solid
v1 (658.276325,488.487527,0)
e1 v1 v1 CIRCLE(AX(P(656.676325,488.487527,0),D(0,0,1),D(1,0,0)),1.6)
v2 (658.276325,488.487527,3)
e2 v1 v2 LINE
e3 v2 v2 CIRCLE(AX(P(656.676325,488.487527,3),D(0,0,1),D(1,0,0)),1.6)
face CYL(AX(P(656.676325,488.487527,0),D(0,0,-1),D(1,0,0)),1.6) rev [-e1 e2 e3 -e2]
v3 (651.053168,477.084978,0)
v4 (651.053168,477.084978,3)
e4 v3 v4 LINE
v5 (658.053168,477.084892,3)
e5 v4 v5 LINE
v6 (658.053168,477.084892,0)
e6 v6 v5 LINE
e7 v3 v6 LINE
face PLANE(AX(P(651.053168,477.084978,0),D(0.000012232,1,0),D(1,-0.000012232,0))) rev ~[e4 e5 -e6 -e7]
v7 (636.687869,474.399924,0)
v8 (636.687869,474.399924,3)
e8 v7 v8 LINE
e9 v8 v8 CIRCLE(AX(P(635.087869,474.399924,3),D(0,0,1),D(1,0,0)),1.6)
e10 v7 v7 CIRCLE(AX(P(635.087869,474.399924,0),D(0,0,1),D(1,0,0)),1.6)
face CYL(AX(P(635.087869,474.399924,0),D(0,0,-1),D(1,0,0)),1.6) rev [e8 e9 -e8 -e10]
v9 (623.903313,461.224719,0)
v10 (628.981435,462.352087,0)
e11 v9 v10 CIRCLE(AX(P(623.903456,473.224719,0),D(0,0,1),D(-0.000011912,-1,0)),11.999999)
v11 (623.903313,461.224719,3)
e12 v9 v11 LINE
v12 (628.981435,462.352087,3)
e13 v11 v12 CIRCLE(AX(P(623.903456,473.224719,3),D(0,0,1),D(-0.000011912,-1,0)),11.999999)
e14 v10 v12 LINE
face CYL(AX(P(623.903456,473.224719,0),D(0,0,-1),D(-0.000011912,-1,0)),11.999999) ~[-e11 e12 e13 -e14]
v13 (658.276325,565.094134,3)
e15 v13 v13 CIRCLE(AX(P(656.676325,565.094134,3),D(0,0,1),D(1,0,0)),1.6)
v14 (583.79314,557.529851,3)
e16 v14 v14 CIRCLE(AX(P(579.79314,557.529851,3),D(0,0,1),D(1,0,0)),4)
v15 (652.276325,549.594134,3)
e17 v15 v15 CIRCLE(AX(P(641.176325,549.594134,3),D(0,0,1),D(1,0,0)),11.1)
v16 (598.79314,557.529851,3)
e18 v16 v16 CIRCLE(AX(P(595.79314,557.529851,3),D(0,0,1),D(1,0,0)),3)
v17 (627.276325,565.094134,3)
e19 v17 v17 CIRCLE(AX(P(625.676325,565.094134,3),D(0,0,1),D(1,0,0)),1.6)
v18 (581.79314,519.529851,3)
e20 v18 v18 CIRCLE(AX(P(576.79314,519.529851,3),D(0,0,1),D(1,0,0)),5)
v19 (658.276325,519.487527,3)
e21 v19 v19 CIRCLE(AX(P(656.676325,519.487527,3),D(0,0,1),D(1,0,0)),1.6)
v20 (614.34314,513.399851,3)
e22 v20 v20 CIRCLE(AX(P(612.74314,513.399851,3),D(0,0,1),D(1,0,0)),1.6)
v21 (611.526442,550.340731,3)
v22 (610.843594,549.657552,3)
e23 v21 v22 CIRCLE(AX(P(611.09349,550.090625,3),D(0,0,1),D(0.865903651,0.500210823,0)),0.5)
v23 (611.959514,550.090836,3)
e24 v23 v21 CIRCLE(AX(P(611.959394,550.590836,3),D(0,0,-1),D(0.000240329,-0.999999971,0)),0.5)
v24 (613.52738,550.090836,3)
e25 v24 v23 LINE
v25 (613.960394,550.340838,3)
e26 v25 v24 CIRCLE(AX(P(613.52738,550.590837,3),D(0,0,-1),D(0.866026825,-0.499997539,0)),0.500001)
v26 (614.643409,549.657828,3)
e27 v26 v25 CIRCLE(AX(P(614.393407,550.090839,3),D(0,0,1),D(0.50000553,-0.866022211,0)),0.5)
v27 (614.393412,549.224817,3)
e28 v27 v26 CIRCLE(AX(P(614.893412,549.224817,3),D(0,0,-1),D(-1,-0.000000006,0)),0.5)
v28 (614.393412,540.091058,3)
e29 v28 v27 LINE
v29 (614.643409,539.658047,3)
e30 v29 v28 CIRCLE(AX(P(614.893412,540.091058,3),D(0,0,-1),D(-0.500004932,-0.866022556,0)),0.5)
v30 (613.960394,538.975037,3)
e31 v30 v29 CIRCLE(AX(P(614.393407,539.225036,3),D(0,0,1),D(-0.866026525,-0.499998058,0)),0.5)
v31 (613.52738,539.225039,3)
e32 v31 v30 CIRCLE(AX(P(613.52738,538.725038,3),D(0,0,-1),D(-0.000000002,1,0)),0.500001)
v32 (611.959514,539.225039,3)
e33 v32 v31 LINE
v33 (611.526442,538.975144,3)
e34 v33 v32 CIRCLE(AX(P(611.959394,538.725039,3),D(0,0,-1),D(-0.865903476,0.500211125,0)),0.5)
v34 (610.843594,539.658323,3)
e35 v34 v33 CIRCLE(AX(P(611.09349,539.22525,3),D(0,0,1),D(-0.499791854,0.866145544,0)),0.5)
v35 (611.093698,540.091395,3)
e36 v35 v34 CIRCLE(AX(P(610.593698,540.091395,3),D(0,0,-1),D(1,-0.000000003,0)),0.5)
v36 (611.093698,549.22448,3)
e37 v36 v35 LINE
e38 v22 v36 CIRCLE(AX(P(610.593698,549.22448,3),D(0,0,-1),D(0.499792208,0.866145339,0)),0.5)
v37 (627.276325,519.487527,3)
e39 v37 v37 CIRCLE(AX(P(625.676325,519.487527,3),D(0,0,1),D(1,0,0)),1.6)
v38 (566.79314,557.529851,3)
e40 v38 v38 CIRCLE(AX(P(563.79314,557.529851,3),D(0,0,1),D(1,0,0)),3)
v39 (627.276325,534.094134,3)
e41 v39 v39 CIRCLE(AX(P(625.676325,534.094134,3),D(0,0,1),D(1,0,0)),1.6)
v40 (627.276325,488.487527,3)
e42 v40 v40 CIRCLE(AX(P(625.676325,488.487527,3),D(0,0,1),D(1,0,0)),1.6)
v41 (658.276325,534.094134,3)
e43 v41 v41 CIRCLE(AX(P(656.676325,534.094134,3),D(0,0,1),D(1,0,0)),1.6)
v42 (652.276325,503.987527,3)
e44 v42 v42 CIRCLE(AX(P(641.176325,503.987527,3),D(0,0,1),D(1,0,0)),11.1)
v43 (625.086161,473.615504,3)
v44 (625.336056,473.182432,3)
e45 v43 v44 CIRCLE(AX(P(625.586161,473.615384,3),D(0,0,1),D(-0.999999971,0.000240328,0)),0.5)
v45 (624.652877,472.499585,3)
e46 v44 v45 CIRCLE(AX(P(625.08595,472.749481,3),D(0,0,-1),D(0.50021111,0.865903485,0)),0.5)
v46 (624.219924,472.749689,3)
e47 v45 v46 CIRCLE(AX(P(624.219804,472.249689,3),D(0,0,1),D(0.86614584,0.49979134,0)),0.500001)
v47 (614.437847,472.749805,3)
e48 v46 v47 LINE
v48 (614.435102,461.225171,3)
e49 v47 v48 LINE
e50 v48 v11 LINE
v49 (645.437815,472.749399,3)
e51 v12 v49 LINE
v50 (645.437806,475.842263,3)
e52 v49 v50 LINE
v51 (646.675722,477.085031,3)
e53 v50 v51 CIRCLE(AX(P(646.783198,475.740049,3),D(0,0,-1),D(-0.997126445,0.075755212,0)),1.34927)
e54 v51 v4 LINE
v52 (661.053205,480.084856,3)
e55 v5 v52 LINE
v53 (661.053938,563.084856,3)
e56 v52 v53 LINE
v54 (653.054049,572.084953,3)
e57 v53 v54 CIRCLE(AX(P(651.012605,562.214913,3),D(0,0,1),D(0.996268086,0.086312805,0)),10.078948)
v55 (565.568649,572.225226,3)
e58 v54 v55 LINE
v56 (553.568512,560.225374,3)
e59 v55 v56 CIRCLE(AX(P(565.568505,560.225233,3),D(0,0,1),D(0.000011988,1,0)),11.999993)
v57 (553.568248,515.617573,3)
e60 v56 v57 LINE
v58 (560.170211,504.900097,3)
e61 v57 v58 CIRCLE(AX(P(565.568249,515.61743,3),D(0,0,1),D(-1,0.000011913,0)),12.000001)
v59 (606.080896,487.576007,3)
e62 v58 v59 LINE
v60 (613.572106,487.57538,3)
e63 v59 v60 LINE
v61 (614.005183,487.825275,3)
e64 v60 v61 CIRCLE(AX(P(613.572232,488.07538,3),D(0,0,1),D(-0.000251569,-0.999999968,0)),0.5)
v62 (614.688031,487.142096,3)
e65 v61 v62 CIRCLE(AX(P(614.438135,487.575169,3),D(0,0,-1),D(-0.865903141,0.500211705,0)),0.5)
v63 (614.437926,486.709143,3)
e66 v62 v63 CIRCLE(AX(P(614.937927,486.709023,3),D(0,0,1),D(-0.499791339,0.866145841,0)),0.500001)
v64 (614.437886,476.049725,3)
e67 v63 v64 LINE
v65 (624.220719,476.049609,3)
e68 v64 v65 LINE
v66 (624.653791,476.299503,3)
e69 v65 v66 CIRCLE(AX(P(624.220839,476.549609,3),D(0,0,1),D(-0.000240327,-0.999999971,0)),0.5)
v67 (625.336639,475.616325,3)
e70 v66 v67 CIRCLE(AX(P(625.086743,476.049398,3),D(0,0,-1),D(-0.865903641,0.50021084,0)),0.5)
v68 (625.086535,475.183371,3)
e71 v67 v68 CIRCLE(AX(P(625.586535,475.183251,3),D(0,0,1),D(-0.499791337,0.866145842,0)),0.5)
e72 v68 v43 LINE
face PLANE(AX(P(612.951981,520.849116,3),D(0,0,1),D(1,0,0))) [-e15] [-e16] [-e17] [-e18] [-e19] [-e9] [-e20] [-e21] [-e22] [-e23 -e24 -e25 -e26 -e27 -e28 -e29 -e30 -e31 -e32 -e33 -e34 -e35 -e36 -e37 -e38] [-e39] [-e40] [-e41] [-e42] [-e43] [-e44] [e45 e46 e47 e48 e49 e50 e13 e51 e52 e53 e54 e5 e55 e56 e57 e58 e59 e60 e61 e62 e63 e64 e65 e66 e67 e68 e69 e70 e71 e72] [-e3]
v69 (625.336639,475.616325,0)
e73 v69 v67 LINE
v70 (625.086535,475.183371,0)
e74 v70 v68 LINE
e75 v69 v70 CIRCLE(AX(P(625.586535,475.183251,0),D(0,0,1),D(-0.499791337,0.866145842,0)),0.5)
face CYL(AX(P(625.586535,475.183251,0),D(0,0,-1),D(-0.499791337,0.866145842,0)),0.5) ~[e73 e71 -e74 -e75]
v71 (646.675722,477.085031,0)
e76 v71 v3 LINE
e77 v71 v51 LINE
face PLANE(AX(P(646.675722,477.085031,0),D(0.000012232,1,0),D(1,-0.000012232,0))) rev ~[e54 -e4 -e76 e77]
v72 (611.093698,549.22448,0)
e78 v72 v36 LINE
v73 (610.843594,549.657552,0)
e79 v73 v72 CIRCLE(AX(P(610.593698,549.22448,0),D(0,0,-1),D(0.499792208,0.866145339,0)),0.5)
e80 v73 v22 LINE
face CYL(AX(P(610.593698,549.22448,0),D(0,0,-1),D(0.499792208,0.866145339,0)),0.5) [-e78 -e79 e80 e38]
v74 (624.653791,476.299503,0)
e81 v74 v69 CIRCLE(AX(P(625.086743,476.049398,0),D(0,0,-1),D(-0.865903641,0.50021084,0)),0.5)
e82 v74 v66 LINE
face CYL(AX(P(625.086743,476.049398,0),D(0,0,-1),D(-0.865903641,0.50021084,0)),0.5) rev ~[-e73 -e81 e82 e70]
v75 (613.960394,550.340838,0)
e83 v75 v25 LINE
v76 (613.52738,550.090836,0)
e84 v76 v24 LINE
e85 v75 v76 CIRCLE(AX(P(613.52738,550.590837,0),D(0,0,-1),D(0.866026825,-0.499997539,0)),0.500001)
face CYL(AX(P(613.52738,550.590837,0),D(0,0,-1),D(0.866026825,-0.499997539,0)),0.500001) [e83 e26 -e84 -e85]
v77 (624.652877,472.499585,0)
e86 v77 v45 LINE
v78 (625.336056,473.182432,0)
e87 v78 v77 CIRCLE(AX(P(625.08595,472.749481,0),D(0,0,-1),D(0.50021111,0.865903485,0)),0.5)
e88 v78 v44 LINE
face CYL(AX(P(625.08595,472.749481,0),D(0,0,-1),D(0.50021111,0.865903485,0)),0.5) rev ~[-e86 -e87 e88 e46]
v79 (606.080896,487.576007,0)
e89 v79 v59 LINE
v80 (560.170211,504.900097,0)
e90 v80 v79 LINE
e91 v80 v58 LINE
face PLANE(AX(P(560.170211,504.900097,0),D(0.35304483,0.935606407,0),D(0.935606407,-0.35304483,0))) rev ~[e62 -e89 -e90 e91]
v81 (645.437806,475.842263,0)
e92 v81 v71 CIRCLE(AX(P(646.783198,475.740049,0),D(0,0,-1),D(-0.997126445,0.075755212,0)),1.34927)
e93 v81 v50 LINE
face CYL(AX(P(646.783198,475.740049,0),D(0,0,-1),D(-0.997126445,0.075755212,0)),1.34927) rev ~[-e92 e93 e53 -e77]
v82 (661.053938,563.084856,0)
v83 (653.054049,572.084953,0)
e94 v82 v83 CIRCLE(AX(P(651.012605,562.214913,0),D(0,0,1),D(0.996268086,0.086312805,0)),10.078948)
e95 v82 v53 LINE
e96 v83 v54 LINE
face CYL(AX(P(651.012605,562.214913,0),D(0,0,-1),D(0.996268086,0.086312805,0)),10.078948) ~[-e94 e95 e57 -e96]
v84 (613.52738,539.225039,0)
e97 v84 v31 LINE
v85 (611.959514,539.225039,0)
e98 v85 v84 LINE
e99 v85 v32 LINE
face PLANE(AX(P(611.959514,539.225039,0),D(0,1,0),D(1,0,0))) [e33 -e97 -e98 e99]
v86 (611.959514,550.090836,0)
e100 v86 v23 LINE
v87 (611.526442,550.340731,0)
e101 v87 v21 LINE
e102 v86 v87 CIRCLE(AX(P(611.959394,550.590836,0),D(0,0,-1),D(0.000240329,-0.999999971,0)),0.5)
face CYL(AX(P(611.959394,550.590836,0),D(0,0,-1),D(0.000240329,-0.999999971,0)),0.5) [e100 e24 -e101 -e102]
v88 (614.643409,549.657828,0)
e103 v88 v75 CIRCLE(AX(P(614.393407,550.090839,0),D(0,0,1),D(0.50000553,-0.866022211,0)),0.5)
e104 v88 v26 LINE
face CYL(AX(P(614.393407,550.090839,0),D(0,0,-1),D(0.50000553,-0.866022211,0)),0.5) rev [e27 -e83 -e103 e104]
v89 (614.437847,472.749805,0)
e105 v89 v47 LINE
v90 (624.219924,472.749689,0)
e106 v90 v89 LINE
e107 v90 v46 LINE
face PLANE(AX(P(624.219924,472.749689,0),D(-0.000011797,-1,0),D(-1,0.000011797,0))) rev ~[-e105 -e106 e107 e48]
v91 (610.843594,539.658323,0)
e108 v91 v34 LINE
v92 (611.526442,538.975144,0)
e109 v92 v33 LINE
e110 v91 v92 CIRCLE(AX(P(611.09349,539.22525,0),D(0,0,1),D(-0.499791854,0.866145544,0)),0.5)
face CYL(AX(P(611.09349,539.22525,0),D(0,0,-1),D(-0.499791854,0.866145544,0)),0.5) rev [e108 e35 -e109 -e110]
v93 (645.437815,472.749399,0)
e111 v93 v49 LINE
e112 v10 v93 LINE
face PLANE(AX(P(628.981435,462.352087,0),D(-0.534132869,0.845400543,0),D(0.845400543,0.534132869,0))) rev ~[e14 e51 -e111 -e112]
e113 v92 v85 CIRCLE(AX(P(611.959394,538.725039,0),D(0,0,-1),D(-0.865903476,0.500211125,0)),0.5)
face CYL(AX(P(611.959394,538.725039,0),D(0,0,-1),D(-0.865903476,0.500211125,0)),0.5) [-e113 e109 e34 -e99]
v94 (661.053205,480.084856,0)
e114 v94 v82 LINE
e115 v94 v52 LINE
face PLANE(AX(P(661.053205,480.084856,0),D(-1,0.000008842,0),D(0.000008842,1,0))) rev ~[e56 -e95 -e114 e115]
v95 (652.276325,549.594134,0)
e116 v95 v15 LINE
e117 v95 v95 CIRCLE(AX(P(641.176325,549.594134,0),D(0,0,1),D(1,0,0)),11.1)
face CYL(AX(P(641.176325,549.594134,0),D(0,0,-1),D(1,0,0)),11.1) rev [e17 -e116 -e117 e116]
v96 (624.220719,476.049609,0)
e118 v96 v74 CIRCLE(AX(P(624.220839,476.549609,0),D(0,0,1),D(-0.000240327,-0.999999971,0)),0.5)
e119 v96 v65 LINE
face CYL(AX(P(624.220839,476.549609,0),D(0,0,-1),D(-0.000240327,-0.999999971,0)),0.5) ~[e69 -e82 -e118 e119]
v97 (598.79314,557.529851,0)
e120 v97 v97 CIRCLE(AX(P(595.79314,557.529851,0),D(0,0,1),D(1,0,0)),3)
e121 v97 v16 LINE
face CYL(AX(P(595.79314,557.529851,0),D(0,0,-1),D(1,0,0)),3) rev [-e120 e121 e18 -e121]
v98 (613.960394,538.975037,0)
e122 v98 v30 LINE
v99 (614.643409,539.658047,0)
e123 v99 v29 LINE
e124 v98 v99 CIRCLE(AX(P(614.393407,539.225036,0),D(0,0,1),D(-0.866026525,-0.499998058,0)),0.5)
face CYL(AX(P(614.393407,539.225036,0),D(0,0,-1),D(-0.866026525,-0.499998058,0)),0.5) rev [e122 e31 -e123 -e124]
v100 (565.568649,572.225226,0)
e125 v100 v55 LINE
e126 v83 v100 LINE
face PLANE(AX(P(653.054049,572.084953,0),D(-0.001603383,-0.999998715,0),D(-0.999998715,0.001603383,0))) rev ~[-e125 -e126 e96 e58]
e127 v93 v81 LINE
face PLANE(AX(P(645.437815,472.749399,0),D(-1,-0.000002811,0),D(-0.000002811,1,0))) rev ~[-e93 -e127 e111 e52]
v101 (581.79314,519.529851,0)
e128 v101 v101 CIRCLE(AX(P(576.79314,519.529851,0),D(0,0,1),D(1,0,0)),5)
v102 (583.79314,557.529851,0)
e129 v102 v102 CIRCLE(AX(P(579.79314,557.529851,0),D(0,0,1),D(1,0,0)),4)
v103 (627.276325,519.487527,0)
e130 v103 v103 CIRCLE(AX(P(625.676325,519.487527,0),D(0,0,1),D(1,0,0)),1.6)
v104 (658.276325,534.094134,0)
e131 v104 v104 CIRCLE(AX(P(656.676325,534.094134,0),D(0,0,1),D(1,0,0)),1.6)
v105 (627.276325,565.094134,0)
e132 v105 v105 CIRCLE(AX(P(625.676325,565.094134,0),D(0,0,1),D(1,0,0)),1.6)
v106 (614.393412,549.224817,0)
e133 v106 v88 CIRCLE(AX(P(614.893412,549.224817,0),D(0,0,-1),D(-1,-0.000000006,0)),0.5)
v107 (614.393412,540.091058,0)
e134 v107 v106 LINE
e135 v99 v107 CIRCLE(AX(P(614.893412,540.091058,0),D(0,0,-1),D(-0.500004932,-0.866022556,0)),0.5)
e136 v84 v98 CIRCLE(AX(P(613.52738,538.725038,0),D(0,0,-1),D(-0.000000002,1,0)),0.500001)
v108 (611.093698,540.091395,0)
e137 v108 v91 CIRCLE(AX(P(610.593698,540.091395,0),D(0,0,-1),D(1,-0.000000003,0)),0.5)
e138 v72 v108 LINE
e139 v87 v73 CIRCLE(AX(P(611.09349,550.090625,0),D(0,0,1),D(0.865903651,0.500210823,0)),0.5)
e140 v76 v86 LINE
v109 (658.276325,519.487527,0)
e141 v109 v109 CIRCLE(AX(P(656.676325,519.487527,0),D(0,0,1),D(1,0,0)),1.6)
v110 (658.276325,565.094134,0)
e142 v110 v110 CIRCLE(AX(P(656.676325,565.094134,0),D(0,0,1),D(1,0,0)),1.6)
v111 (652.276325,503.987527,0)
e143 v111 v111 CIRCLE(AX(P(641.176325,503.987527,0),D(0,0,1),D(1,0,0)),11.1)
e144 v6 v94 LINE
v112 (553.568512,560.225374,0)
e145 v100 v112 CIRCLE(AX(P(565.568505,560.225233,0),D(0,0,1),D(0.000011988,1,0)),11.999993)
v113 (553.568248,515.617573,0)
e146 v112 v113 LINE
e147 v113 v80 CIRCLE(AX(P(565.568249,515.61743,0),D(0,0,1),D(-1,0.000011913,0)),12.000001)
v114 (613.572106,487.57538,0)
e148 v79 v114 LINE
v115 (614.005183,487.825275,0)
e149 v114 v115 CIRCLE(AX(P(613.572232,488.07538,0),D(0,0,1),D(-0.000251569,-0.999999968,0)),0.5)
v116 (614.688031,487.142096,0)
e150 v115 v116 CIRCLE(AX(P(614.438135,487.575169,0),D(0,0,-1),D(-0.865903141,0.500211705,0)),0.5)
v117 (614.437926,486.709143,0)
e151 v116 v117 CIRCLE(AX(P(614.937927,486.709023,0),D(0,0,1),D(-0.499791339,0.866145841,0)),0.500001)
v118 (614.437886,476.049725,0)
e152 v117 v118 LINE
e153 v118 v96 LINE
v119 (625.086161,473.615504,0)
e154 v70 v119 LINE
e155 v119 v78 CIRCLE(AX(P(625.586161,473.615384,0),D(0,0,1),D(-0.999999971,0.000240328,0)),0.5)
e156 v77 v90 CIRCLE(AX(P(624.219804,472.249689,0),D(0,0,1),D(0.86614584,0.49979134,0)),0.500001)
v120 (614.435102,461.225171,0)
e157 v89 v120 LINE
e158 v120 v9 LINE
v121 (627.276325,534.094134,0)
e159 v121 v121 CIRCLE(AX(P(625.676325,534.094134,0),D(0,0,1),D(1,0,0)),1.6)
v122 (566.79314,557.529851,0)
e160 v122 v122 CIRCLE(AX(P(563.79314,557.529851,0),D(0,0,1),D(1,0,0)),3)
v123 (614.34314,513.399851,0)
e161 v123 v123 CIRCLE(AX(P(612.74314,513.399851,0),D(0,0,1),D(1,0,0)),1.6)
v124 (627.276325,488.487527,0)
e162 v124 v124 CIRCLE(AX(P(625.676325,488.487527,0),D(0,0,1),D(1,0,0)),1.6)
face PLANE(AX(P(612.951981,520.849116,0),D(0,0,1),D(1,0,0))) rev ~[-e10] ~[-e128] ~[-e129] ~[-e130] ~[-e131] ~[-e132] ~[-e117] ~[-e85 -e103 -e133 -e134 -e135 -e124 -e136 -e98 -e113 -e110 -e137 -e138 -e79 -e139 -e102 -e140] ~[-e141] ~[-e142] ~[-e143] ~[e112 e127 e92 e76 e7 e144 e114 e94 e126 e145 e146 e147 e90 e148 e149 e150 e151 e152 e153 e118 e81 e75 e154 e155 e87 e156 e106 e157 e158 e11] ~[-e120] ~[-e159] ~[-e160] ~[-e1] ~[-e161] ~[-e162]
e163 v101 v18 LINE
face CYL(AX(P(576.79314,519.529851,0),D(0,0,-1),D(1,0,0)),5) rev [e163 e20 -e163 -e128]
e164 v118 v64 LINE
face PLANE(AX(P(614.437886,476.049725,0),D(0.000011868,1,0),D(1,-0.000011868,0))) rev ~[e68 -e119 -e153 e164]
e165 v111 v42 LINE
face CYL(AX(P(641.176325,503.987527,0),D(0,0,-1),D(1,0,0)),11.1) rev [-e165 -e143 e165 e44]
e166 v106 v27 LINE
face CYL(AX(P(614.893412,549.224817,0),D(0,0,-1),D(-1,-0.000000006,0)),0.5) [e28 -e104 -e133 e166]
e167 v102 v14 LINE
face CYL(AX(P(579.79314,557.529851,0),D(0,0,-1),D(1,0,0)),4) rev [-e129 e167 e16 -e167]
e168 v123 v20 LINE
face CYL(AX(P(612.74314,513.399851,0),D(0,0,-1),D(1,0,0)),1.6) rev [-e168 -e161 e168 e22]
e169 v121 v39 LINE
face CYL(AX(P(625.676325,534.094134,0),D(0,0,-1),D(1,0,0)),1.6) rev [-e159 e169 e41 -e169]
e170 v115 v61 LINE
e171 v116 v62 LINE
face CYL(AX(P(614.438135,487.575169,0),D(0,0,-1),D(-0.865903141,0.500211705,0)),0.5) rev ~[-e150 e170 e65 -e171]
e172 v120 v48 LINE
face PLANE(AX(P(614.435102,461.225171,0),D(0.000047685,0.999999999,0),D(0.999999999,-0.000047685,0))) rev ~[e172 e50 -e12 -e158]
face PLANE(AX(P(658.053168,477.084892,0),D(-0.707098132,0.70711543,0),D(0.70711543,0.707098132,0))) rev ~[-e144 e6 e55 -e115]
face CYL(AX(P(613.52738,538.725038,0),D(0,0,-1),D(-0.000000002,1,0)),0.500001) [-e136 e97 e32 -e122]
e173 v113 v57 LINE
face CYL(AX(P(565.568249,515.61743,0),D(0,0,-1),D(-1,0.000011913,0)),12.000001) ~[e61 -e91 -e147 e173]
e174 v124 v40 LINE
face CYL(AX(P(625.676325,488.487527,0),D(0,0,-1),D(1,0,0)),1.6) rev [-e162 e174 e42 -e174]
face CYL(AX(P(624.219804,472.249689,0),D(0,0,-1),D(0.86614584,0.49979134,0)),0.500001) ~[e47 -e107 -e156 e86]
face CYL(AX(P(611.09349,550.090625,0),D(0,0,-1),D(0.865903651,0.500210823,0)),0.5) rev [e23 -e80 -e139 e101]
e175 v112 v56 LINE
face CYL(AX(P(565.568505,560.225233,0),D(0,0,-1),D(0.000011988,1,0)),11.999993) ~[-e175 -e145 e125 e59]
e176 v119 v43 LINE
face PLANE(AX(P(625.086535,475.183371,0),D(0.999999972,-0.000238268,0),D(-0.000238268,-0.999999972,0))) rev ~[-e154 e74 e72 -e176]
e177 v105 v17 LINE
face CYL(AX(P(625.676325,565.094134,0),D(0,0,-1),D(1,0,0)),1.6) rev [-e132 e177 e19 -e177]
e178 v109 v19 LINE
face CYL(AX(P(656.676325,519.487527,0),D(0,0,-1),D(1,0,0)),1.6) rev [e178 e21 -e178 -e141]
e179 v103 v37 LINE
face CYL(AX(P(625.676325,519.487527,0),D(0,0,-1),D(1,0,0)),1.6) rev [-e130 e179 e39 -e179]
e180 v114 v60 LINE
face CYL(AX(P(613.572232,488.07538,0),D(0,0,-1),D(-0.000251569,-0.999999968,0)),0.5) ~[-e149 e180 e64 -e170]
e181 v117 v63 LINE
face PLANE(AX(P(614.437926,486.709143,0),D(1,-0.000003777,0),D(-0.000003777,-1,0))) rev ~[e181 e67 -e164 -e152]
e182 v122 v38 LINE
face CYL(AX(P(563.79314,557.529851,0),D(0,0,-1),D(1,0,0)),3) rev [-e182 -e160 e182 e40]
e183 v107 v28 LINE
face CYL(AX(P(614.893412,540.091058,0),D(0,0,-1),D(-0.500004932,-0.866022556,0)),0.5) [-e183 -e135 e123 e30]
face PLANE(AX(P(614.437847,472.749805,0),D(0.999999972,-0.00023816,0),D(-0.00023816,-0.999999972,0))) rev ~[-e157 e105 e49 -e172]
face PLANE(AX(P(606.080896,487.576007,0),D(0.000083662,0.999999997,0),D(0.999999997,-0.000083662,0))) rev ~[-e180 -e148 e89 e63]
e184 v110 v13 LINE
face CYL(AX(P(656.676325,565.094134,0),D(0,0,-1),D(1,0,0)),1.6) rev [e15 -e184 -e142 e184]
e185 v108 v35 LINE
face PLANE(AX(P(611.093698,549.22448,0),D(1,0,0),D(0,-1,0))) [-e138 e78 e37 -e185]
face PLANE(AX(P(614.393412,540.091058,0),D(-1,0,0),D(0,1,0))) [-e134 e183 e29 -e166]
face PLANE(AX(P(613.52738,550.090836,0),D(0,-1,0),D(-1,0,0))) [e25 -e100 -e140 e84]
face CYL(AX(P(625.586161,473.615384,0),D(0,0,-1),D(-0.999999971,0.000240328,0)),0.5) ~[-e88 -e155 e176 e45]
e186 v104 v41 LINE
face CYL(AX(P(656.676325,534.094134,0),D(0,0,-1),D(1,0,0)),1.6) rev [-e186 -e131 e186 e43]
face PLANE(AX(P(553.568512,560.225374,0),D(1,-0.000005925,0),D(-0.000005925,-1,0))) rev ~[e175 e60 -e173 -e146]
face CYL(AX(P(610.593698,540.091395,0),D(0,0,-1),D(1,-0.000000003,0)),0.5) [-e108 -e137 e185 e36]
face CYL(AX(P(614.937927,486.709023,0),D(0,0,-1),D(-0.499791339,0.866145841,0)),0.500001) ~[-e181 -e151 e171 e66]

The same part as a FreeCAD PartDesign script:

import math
import FreeCAD as App
import Part
import Sketcher
from FreeCAD import Vector
Q = App.Units.Quantity

doc = App.newDocument("Part")
params = doc.addObject("Spreadsheet::Sheet", "Params")
for row, (alias, value) in enumerate([
    ("sketch1_diameter", "10 mm"),
    ("sketch1_diameter2", "6 mm"),
    ("sketch1_diameter3", "8 mm"),
    ("sketch1_diameter4", "6 mm"),
    ("sketch1_radius", "11.999999 mm"),
    ("pad1_length", "3 mm"),
], start=1):
    params.set(f"A{row}", alias)
    params.set(f"B{row}", "=" + value)
    params.setAlias(f"B{row}", alias)

body = doc.addObject("PartDesign::Body", "Body")

sketch1 = doc.addObject("Sketcher::SketchObject", "Sketch")
body.addObject(sketch1)
sketch1.AttachmentSupport = (doc.XY_Plane, [""])
sketch1.MapMode = "FlatFace"
sketch1.addGeometry(Part.LineSegment(Vector(614.435102, 461.225171, 0), Vector(623.903313, 461.224719, 0)), False)
sketch1.addGeometry(Part.ArcOfCircle(Part.Circle(Vector(623.903456, 473.224719, 0), Vector(0, 0, 1), 11.999999), math.radians(-90.000683), math.radians(-64.965438)), False)
sketch1.addGeometry(Part.LineSegment(Vector(628.981435, 462.352087, 0), Vector(645.437815, 472.749399, 0)), False)
sketch1.addGeometry(Part.LineSegment(Vector(645.437815, 472.749399, 0), Vector(645.437806, 475.842263, 0)), False)
sketch1.addGeometry(Part.ArcOfCircle(Part.Circle(Vector(646.783198, 475.740049, 0), Vector(0, 0, 1), 1.34927), math.radians(94.568757), math.radians(175.655384)), False)
sketch1.addGeometry(Part.LineSegment(Vector(646.675722, 477.085031, 0), Vector(651.053168, 477.084978, 0)), False)
sketch1.addGeometry(Part.LineSegment(Vector(651.053168, 477.084978, 0), Vector(658.053168, 477.084892, 0)), False)
sketch1.addGeometry(Part.LineSegment(Vector(658.053168, 477.084892, 0), Vector(661.053205, 480.084856, 0)), False)
sketch1.addGeometry(Part.LineSegment(Vector(661.053205, 480.084856, 0), Vector(661.053938, 563.084856, 0)), False)
sketch1.addGeometry(Part.ArcOfCircle(Part.Circle(Vector(651.012605, 562.214913, 0), Vector(0, 0, 1), 10.078948), math.radians(4.951521), math.radians(78.314156)), False)
sketch1.addGeometry(Part.LineSegment(Vector(653.054049, 572.084953, 0), Vector(565.568649, 572.225226, 0)), False)
sketch1.addGeometry(Part.ArcOfCircle(Part.Circle(Vector(565.568505, 560.225233, 0), Vector(0, 0, 1), 11.999993), math.radians(89.999313), math.radians(179.999327)), False)
sketch1.addGeometry(Part.LineSegment(Vector(553.568512, 560.225374, 0), Vector(553.568248, 515.617573, 0)), False)
sketch1.addGeometry(Part.ArcOfCircle(Part.Circle(Vector(565.568249, 515.61743, 0), Vector(0, 0, 1), 12.000001), math.radians(179.999317), math.radians(243.26681)), False)
sketch1.addGeometry(Part.LineSegment(Vector(560.170211, 504.900097, 0), Vector(606.080896, 487.576007, 0)), False)
sketch1.addGeometry(Part.LineSegment(Vector(606.080896, 487.576007, 0), Vector(613.572106, 487.57538, 0)), False)
sketch1.addGeometry(Part.ArcOfCircle(Part.Circle(Vector(613.572232, 488.07538, 0), Vector(0, 0, 1), 0.5), math.radians(-90.014414), math.radians(-30.013968)), False)
sketch1.addGeometry(Part.ArcOfCircle(Part.Circle(Vector(614.438135, 487.575169, 0), Vector(0, 0, 1), 0.5), math.radians(-60.01377), math.radians(149.985993)), False)
sketch1.addGeometry(Part.ArcOfCircle(Part.Circle(Vector(614.937927, 486.709023, 0), Vector(0, 0, 1), 0.500001), math.radians(119.986196), math.radians(179.98623)), False)
sketch1.addGeometry(Part.LineSegment(Vector(614.437926, 486.709143, 0), Vector(614.437886, 476.049725, 0)), False)
sketch1.addGeometry(Part.LineSegment(Vector(614.437886, 476.049725, 0), Vector(624.220719, 476.049609, 0)), False)
sketch1.addGeometry(Part.ArcOfCircle(Part.Circle(Vector(624.220839, 476.549609, 0), Vector(0, 0, 1), 0.5), math.radians(-90.01377), math.radians(-30.013968)), False)
sketch1.addGeometry(Part.ArcOfCircle(Part.Circle(Vector(625.086743, 476.049398, 0), Vector(0, 0, 1), 0.5), math.radians(-60.01377), math.radians(149.98605)), False)
sketch1.addGeometry(Part.ArcOfCircle(Part.Circle(Vector(625.586535, 475.183251, 0), Vector(0, 0, 1), 0.5), math.radians(119.986196), math.radians(179.98623)), False)
sketch1.addGeometry(Part.LineSegment(Vector(625.086535, 475.183371, 0), Vector(625.086161, 473.615504, 0)), False)
sketch1.addGeometry(Part.ArcOfCircle(Part.Circle(Vector(625.586161, 473.615384, 0), Vector(0, 0, 1), 0.5), math.radians(179.98623), math.radians(239.98605)), False)
sketch1.addGeometry(Part.ArcOfCircle(Part.Circle(Vector(625.08595, 472.749481, 0), Vector(0, 0, 1), 0.5), math.radians(-150.01377), math.radians(59.986032)), False)
sketch1.addGeometry(Part.ArcOfCircle(Part.Circle(Vector(624.219804, 472.249689, 0), Vector(0, 0, 1), 0.500001), math.radians(29.986196), math.radians(89.98623)), False)
sketch1.addGeometry(Part.LineSegment(Vector(624.219924, 472.749689, 0), Vector(614.437847, 472.749805, 0)), False)
sketch1.addGeometry(Part.LineSegment(Vector(614.437847, 472.749805, 0), Vector(614.435102, 461.225171, 0)), False)
sketch1.addGeometry(Part.Circle(Vector(576.79314, 519.529851, 0), Vector(0, 0, 1), 5), False)
sketch1.addGeometry(Part.Circle(Vector(625.676325, 488.487527, 0), Vector(0, 0, 1), 1.6), False)
sketch1.addGeometry(Part.Circle(Vector(635.087869, 474.399924, 0), Vector(0, 0, 1), 1.6), False)
sketch1.addGeometry(Part.Circle(Vector(656.676325, 488.487527, 0), Vector(0, 0, 1), 1.6), False)
sketch1.addGeometry(Part.Circle(Vector(612.74314, 513.399851, 0), Vector(0, 0, 1), 1.6), False)
sketch1.addGeometry(Part.Circle(Vector(625.676325, 519.487527, 0), Vector(0, 0, 1), 1.6), False)
sketch1.addGeometry(Part.Circle(Vector(641.176325, 503.987527, 0), Vector(0, 0, 1), 11.1), False)
sketch1.addGeometry(Part.Circle(Vector(656.676325, 519.487527, 0), Vector(0, 0, 1), 1.6), False)
sketch1.addGeometry(Part.Circle(Vector(563.79314, 557.529851, 0), Vector(0, 0, 1), 3), False)
sketch1.addGeometry(Part.Circle(Vector(579.79314, 557.529851, 0), Vector(0, 0, 1), 4), False)
sketch1.addGeometry(Part.Circle(Vector(595.79314, 557.529851, 0), Vector(0, 0, 1), 3), False)
sketch1.addGeometry(Part.Circle(Vector(625.676325, 534.094134, 0), Vector(0, 0, 1), 1.6), False)
sketch1.addGeometry(Part.Circle(Vector(656.676325, 534.094134, 0), Vector(0, 0, 1), 1.6), False)
sketch1.addGeometry(Part.LineSegment(Vector(611.093698, 540.091395, 0), Vector(611.093698, 549.22448, 0)), False)
sketch1.addGeometry(Part.ArcOfCircle(Part.Circle(Vector(610.593698, 549.22448, 0), Vector(0, 0, 1), 0.5), math.radians(0), math.radians(60.013746)), False)
sketch1.addGeometry(Part.ArcOfCircle(Part.Circle(Vector(611.09349, 550.090625, 0), Vector(0, 0, 1), 0.5), math.radians(30.013949), math.radians(240.01377)), False)
sketch1.addGeometry(Part.ArcOfCircle(Part.Circle(Vector(611.959394, 550.590836, 0), Vector(0, 0, 1), 0.5), math.radians(-149.986031), math.radians(-89.98623)), False)
sketch1.addGeometry(Part.LineSegment(Vector(611.959514, 550.090836, 0), Vector(613.52738, 550.090836, 0)), False)
sketch1.addGeometry(Part.ArcOfCircle(Part.Circle(Vector(613.52738, 550.590837, 0), Vector(0, 0, 1), 0.500001), math.radians(-90), math.radians(-29.999837)), False)
sketch1.addGeometry(Part.ArcOfCircle(Part.Circle(Vector(614.393407, 550.090839, 0), Vector(0, 0, 1), 0.5), math.radians(-59.999634), math.radians(150.000129)), False)
sketch1.addGeometry(Part.ArcOfCircle(Part.Circle(Vector(614.893412, 549.224817, 0), Vector(0, 0, 1), 0.5), math.radians(120.000326), math.radians(180)), False)
sketch1.addGeometry(Part.LineSegment(Vector(614.393412, 549.224817, 0), Vector(614.393412, 540.091058, 0)), False)
sketch1.addGeometry(Part.ArcOfCircle(Part.Circle(Vector(614.893412, 540.091058, 0), Vector(0, 0, 1), 0.5), math.radians(180), math.radians(239.999674)), False)
sketch1.addGeometry(Part.ArcOfCircle(Part.Circle(Vector(614.393407, 539.225036, 0), Vector(0, 0, 1), 0.5), math.radians(-150.000129), math.radians(59.999634)), False)
sketch1.addGeometry(Part.ArcOfCircle(Part.Circle(Vector(613.52738, 538.725038, 0), Vector(0, 0, 1), 0.500001), math.radians(29.999837), math.radians(90)), False)
sketch1.addGeometry(Part.LineSegment(Vector(613.52738, 539.225039, 0), Vector(611.959514, 539.225039, 0)), False)
sketch1.addGeometry(Part.ArcOfCircle(Part.Circle(Vector(611.959394, 538.725039, 0), Vector(0, 0, 1), 0.5), math.radians(89.98623), math.radians(149.986031)), False)
sketch1.addGeometry(Part.ArcOfCircle(Part.Circle(Vector(611.09349, 539.22525, 0), Vector(0, 0, 1), 0.5), math.radians(119.98623), math.radians(329.986051)), False)
sketch1.addGeometry(Part.ArcOfCircle(Part.Circle(Vector(610.593698, 540.091395, 0), Vector(0, 0, 1), 0.5), math.radians(-60.013746), math.radians(0)), False)
sketch1.addGeometry(Part.Circle(Vector(625.676325, 565.094134, 0), Vector(0, 0, 1), 1.6), False)
sketch1.addGeometry(Part.Circle(Vector(641.176325, 549.594134, 0), Vector(0, 0, 1), 11.1), False)
sketch1.addGeometry(Part.Circle(Vector(656.676325, 565.094134, 0), Vector(0, 0, 1), 1.6), False)
sketch1.addConstraint(Sketcher.Constraint("Coincident", 0, 2, 1, 1))
sketch1.addConstraint(Sketcher.Constraint("Coincident", 1, 2, 2, 1))
sketch1.addConstraint(Sketcher.Constraint("Coincident", 2, 2, 3, 1))
sketch1.addConstraint(Sketcher.Constraint("Coincident", 3, 2, 4, 2))
sketch1.addConstraint(Sketcher.Constraint("Coincident", 4, 1, 5, 1))
sketch1.addConstraint(Sketcher.Constraint("Coincident", 5, 2, 6, 1))
sketch1.addConstraint(Sketcher.Constraint("Coincident", 6, 2, 7, 1))
sketch1.addConstraint(Sketcher.Constraint("Coincident", 7, 2, 8, 1))
sketch1.addConstraint(Sketcher.Constraint("Coincident", 8, 2, 9, 1))
sketch1.addConstraint(Sketcher.Constraint("Coincident", 9, 2, 10, 1))
sketch1.addConstraint(Sketcher.Constraint("Coincident", 10, 2, 11, 1))
sketch1.addConstraint(Sketcher.Constraint("Coincident", 11, 2, 12, 1))
sketch1.addConstraint(Sketcher.Constraint("Coincident", 12, 2, 13, 1))
sketch1.addConstraint(Sketcher.Constraint("Coincident", 13, 2, 14, 1))
sketch1.addConstraint(Sketcher.Constraint("Coincident", 14, 2, 15, 1))
sketch1.addConstraint(Sketcher.Constraint("Coincident", 15, 2, 16, 1))
sketch1.addConstraint(Sketcher.Constraint("Coincident", 16, 2, 17, 2))
sketch1.addConstraint(Sketcher.Constraint("Coincident", 17, 1, 18, 1))
sketch1.addConstraint(Sketcher.Constraint("Coincident", 18, 2, 19, 1))
sketch1.addConstraint(Sketcher.Constraint("Coincident", 19, 2, 20, 1))
sketch1.addConstraint(Sketcher.Constraint("Coincident", 20, 2, 21, 1))
sketch1.addConstraint(Sketcher.Constraint("Coincident", 21, 2, 22, 2))
sketch1.addConstraint(Sketcher.Constraint("Coincident", 22, 1, 23, 1))
sketch1.addConstraint(Sketcher.Constraint("Coincident", 23, 2, 24, 1))
sketch1.addConstraint(Sketcher.Constraint("Coincident", 24, 2, 25, 1))
sketch1.addConstraint(Sketcher.Constraint("Coincident", 25, 2, 26, 2))
sketch1.addConstraint(Sketcher.Constraint("Coincident", 26, 1, 27, 1))
sketch1.addConstraint(Sketcher.Constraint("Coincident", 27, 2, 28, 1))
sketch1.addConstraint(Sketcher.Constraint("Coincident", 28, 2, 29, 1))
sketch1.addConstraint(Sketcher.Constraint("Coincident", 29, 2, 0, 1))
sketch1.addConstraint(Sketcher.Constraint("Coincident", 43, 2, 44, 1))
sketch1.addConstraint(Sketcher.Constraint("Coincident", 44, 2, 45, 2))
sketch1.addConstraint(Sketcher.Constraint("Coincident", 45, 1, 46, 1))
sketch1.addConstraint(Sketcher.Constraint("Coincident", 46, 2, 47, 1))
sketch1.addConstraint(Sketcher.Constraint("Coincident", 47, 2, 48, 1))
sketch1.addConstraint(Sketcher.Constraint("Coincident", 48, 2, 49, 2))
sketch1.addConstraint(Sketcher.Constraint("Coincident", 49, 1, 50, 1))
sketch1.addConstraint(Sketcher.Constraint("Coincident", 50, 2, 51, 1))
sketch1.addConstraint(Sketcher.Constraint("Coincident", 51, 2, 52, 1))
sketch1.addConstraint(Sketcher.Constraint("Coincident", 52, 2, 53, 2))
sketch1.addConstraint(Sketcher.Constraint("Coincident", 53, 1, 54, 1))
sketch1.addConstraint(Sketcher.Constraint("Coincident", 54, 2, 55, 1))
sketch1.addConstraint(Sketcher.Constraint("Coincident", 55, 2, 56, 1))
sketch1.addConstraint(Sketcher.Constraint("Coincident", 56, 2, 57, 2))
sketch1.addConstraint(Sketcher.Constraint("Coincident", 57, 1, 58, 1))
sketch1.addConstraint(Sketcher.Constraint("Coincident", 58, 2, 43, 1))
sketch1.addConstraint(Sketcher.Constraint("Vertical", 43))
sketch1.addConstraint(Sketcher.Constraint("Horizontal", 47))
sketch1.addConstraint(Sketcher.Constraint("Vertical", 51))
sketch1.addConstraint(Sketcher.Constraint("Horizontal", 55))
sketch1.addConstraint(Sketcher.Constraint("Diameter", 30, Q("10 mm")))
sketch1.addConstraint(Sketcher.Constraint("Diameter", 38, Q("6 mm")))
sketch1.addConstraint(Sketcher.Constraint("Diameter", 39, Q("8 mm")))
sketch1.addConstraint(Sketcher.Constraint("Diameter", 40, Q("6 mm")))
sketch1.addConstraint(Sketcher.Constraint("Radius", 1, Q("11.999999 mm")))
sketch1.addConstraint(Sketcher.Constraint("Radius", 13, Q("12.000001 mm")))
sketch1.addConstraint(Sketcher.Constraint("Diameter", 31, Q("3.2 mm")))
sketch1.addConstraint(Sketcher.Constraint("Diameter", 32, Q("3.2 mm")))
sketch1.addConstraint(Sketcher.Constraint("Diameter", 33, Q("3.2 mm")))
sketch1.addConstraint(Sketcher.Constraint("Diameter", 34, Q("3.2 mm")))
sketch1.addConstraint(Sketcher.Constraint("Diameter", 35, Q("3.2 mm")))
sketch1.addConstraint(Sketcher.Constraint("Diameter", 36, Q("22.2 mm")))
sketch1.addConstraint(Sketcher.Constraint("Diameter", 37, Q("3.2 mm")))
sketch1.addConstraint(Sketcher.Constraint("Diameter", 41, Q("3.2 mm")))
sketch1.addConstraint(Sketcher.Constraint("Diameter", 42, Q("3.2 mm")))
sketch1.addConstraint(Sketcher.Constraint("Diameter", 59, Q("3.2 mm")))
sketch1.addConstraint(Sketcher.Constraint("Diameter", 60, Q("22.2 mm")))
sketch1.addConstraint(Sketcher.Constraint("Diameter", 61, Q("3.2 mm")))
sketch1.addConstraint(Sketcher.Constraint("Radius", 16, Q("0.5 mm")))
sketch1.addConstraint(Sketcher.Constraint("Radius", 17, Q("0.5 mm")))
sketch1.addConstraint(Sketcher.Constraint("Radius", 18, Q("0.500001 mm")))
sketch1.addConstraint(Sketcher.Constraint("Radius", 21, Q("0.5 mm")))
sketch1.addConstraint(Sketcher.Constraint("Radius", 22, Q("0.5 mm")))
sketch1.addConstraint(Sketcher.Constraint("Radius", 23, Q("0.5 mm")))
sketch1.addConstraint(Sketcher.Constraint("Radius", 25, Q("0.5 mm")))
sketch1.addConstraint(Sketcher.Constraint("Radius", 26, Q("0.5 mm")))
sketch1.addConstraint(Sketcher.Constraint("Radius", 27, Q("0.500001 mm")))
sketch1.addConstraint(Sketcher.Constraint("Radius", 44, Q("0.5 mm")))
sketch1.addConstraint(Sketcher.Constraint("Radius", 45, Q("0.5 mm")))
sketch1.addConstraint(Sketcher.Constraint("Radius", 46, Q("0.5 mm")))
sketch1.addConstraint(Sketcher.Constraint("Radius", 48, Q("0.500001 mm")))
sketch1.addConstraint(Sketcher.Constraint("Radius", 49, Q("0.5 mm")))
sketch1.addConstraint(Sketcher.Constraint("Radius", 50, Q("0.5 mm")))
sketch1.addConstraint(Sketcher.Constraint("Radius", 52, Q("0.5 mm")))
sketch1.addConstraint(Sketcher.Constraint("Radius", 53, Q("0.5 mm")))
sketch1.addConstraint(Sketcher.Constraint("Radius", 54, Q("0.500001 mm")))
sketch1.addConstraint(Sketcher.Constraint("Radius", 56, Q("0.5 mm")))
sketch1.addConstraint(Sketcher.Constraint("Radius", 57, Q("0.5 mm")))
sketch1.addConstraint(Sketcher.Constraint("Radius", 58, Q("0.5 mm")))
sketch1.addConstraint(Sketcher.Constraint("Distance", 6, Q("7 mm")))
sketch1.addConstraint(Sketcher.Constraint("Distance", 8, Q("83 mm")))
sketch1.addConstraint(Sketcher.Constraint("Radius", 4, Q("1.34927 mm")))
sketch1.addConstraint(Sketcher.Constraint("Radius", 9, Q("10.078948 mm")))
sketch1.addConstraint(Sketcher.Constraint("Radius", 11, Q("11.999993 mm")))
sketch1.addConstraint(Sketcher.Constraint("Distance", 12, Q("44.607802 mm")))
sketch1.addConstraint(Sketcher.Constraint("DistanceY", 51, 2, 51, 1, Q("9.133758 mm")))
sketch1.addConstraint(Sketcher.Constraint("DistanceX", -1, 1, 4, 3, Q("646.783198 mm")))
sketch1.addConstraint(Sketcher.Constraint("DistanceY", -1, 1, 2, 2, Q("472.749399 mm")))
sketch1.addConstraint(Sketcher.Constraint("Distance", 0, Q("9.468211 mm")))
sketch1.addConstraint(Sketcher.Constraint("Distance", 2, Q("19.465779 mm")))
sketch1.addConstraint(Sketcher.Constraint("Distance", 7, Q("4.242641 mm")))
sketch1.addConstraint(Sketcher.Constraint("Distance", 14, Q("49.070511 mm")))
sketch1.addConstraint(Sketcher.Constraint("Distance", 15, Q("7.49121 mm")))
sketch1.addConstraint(Sketcher.Constraint("Distance", 19, Q("10.659418 mm")))
sketch1.addConstraint(Sketcher.Constraint("DistanceX", 47, 1, 47, 2, Q("1.567866 mm")))
sketch1.addConstraint(Sketcher.Constraint("DistanceX", 55, 2, 55, 1, Q("1.567866 mm")))
sketch1.addConstraint(Sketcher.Constraint("DistanceY", 43, 1, 43, 2, Q("9.133084 mm")))
sketch1.addConstraint(Sketcher.Constraint("DistanceY", -1, 1, 1, 3, Q("473.224719 mm")))
sketch1.addConstraint(Sketcher.Constraint("DistanceY", -1, 1, 4, 3, Q("475.740049 mm")))
sketch1.addConstraint(Sketcher.Constraint("DistanceX", -1, 1, 13, 3, Q("565.568249 mm")))
sketch1.addConstraint(Sketcher.Constraint("DistanceY", -1, 1, 13, 3, Q("515.61743 mm")))
sketch1.addConstraint(Sketcher.Constraint("DistanceX", -1, 1, 16, 3, Q("613.572232 mm")))
sketch1.addConstraint(Sketcher.Constraint("DistanceY", -1, 1, 16, 3, Q("488.07538 mm")))
sketch1.addConstraint(Sketcher.Constraint("DistanceY", -1, 1, 17, 3, Q("487.575169 mm")))
sketch1.addConstraint(Sketcher.Constraint("DistanceX", -1, 1, 21, 3, Q("624.220839 mm")))
sketch1.addConstraint(Sketcher.Constraint("DistanceY", -1, 1, 21, 3, Q("476.549609 mm")))
sketch1.addConstraint(Sketcher.Constraint("DistanceY", -1, 1, 23, 3, Q("475.183251 mm")))
sketch1.addConstraint(Sketcher.Constraint("DistanceX", -1, 1, 25, 3, Q("625.586161 mm")))
sketch1.addConstraint(Sketcher.Constraint("DistanceX", -1, 1, 26, 3, Q("625.08595 mm")))
sketch1.addConstraint(Sketcher.Constraint("DistanceY", -1, 1, 26, 3, Q("472.749481 mm")))
sketch1.addConstraint(Sketcher.Constraint("DistanceY", -1, 1, 27, 3, Q("472.249689 mm")))
sketch1.addConstraint(Sketcher.Constraint("DistanceX", -1, 1, 30, 3, Q("576.79314 mm")))
sketch1.addConstraint(Sketcher.Constraint("DistanceY", -1, 1, 30, 3, Q("519.529851 mm")))
sketch1.addConstraint(Sketcher.Constraint("DistanceX", -1, 1, 32, 3, Q("635.087869 mm")))
sketch1.addConstraint(Sketcher.Constraint("DistanceX", -1, 1, 34, 3, Q("612.74314 mm")))
sketch1.addConstraint(Sketcher.Constraint("DistanceY", -1, 1, 34, 3, Q("513.399851 mm")))
sketch1.addConstraint(Sketcher.Constraint("DistanceX", -1, 1, 38, 3, Q("563.79314 mm")))
sketch1.addConstraint(Sketcher.Constraint("DistanceY", -1, 1, 38, 3, Q("557.529851 mm")))
sketch1.addConstraint(Sketcher.Constraint("DistanceX", -1, 1, 39, 3, Q("579.79314 mm")))
sketch1.addConstraint(Sketcher.Constraint("DistanceY", -1, 1, 39, 3, Q("557.529851 mm")))
sketch1.addConstraint(Sketcher.Constraint("DistanceX", -1, 1, 40, 3, Q("595.79314 mm")))
sketch1.addConstraint(Sketcher.Constraint("DistanceY", -1, 1, 40, 3, Q("557.529851 mm")))
sketch1.addConstraint(Sketcher.Constraint("DistanceY", -1, 1, 44, 3, Q("549.22448 mm")))
sketch1.addConstraint(Sketcher.Constraint("DistanceX", -1, 1, 45, 3, Q("611.09349 mm")))
sketch1.addConstraint(Sketcher.Constraint("DistanceX", -1, 1, 48, 3, Q("613.52738 mm")))
sketch1.addConstraint(Sketcher.Constraint("DistanceY", -1, 1, 49, 3, Q("550.090839 mm")))
sketch1.addConstraint(Sketcher.Constraint("DistanceX", -1, 1, 50, 3, Q("614.893412 mm")))
sketch1.addConstraint(Sketcher.Constraint("DistanceY", -1, 1, 52, 3, Q("540.091058 mm")))
sketch1.addConstraint(Sketcher.Constraint("DistanceX", -1, 1, 54, 3, Q("613.52738 mm")))
sketch1.addConstraint(Sketcher.Constraint("DistanceY", -1, 1, 54, 3, Q("538.725038 mm")))
sketch1.addConstraint(Sketcher.Constraint("DistanceX", -1, 1, 57, 3, Q("611.09349 mm")))
sketch1.addConstraint(Sketcher.Constraint("DistanceY", -1, 1, 57, 3, Q("539.22525 mm")))
sketch1.addConstraint(Sketcher.Constraint("DistanceX", -1, 1, 4, 1, Q("646.675722 mm")))
sketch1.addConstraint(Sketcher.Constraint("DistanceX", -1, 1, 8, 2, Q("661.053938 mm")))
sketch1.addConstraint(Sketcher.Constraint("DistanceX", -1, 1, 9, 2, Q("653.054049 mm")))
sketch1.addConstraint(Sketcher.Constraint("DistanceX", -1, 1, 10, 2, Q("565.568649 mm")))
sketch1.addConstraint(Sketcher.Constraint("DistanceX", -1, 1, 11, 2, Q("553.568512 mm")))
sketch1.addConstraint(Sketcher.Constraint("DistanceX", -1, 1, 13, 2, Q("560.170211 mm")))
sketch1.addConstraint(Sketcher.Constraint("DistanceX", -1, 1, 17, 1, Q("614.688031 mm")))
sketch1.addConstraint(Sketcher.Constraint("DistanceX", -1, 1, 20, 2, Q("624.220719 mm")))
sketch1.addConstraint(Sketcher.Constraint("DistanceX", -1, 1, 21, 2, Q("624.653791 mm")))
sketch1.addConstraint(Sketcher.Constraint("DistanceX", -1, 1, 22, 1, Q("625.336639 mm")))
sketch1.addConstraint(Sketcher.Constraint("DistanceY", -1, 1, 23, 2, Q("475.183371 mm")))
sketch1.addConstraint(Sketcher.Constraint("DistanceY", -1, 1, 29, 2, Q("461.225171 mm")))
sketch1.addConstraint(Sketcher.Constraint("DistanceY", -1, 1, 43, 2, Q("549.22448 mm")))
sketch1.addConstraint(Sketcher.Constraint("DistanceY", -1, 1, 45, 1, Q("550.340731 mm")))
sketch1.addConstraint(Sketcher.Constraint("DistanceX", -1, 1, 47, 2, Q("613.52738 mm")))
sketch1.addConstraint(Sketcher.Constraint("DistanceX", -1, 1, 49, 1, Q("614.643409 mm")))
sketch1.addConstraint(Sketcher.Constraint("DistanceY", -1, 1, 49, 1, Q("549.657828 mm")))
sketch1.addConstraint(Sketcher.Constraint("DistanceY", -1, 1, 51, 2, Q("540.091058 mm")))
sketch1.addConstraint(Sketcher.Constraint("DistanceX", -1, 1, 52, 2, Q("614.643409 mm")))
sketch1.addConstraint(Sketcher.Constraint("DistanceX", -1, 1, 54, 2, Q("613.52738 mm")))
sketch1.addConstraint(Sketcher.Constraint("Distance", 3, Q("3.092864 mm")))
sketch1.addConstraint(Sketcher.Constraint("Distance", 5, Q("4.377446 mm")))
sketch1.addConstraint(Sketcher.Constraint("Distance", 20, Q("9.782833 mm")))
sketch1.addConstraint(Sketcher.Constraint("Distance", 24, Q("1.567867 mm")))
sketch1.addConstraint(Sketcher.Constraint("Distance", 28, Q("9.782077 mm")))
sketch1.addConstraint(Sketcher.Constraint("Distance", 29, Q("11.524634 mm")))
sketch1.addConstraint(Sketcher.Constraint("DistanceX", -1, 1, 1, 3, Q("623.903456 mm")))
sketch1.addConstraint(Sketcher.Constraint("DistanceX", -1, 1, 9, 3, Q("651.012605 mm")))
sketch1.addConstraint(Sketcher.Constraint("DistanceY", -1, 1, 9, 3, Q("562.214913 mm")))
sketch1.addConstraint(Sketcher.Constraint("DistanceY", -1, 1, 11, 3, Q("560.225233 mm")))
sketch1.addConstraint(Sketcher.Constraint("DistanceX", -1, 1, 18, 3, Q("614.937927 mm")))
sketch1.addConstraint(Sketcher.Constraint("DistanceX", -1, 1, 22, 3, Q("625.086743 mm")))
sketch1.addConstraint(Sketcher.Constraint("DistanceX", -1, 1, 31, 3, Q("625.676325 mm")))
sketch1.addConstraint(Sketcher.Constraint("DistanceY", -1, 1, 31, 3, Q("488.487527 mm")))
sketch1.addConstraint(Sketcher.Constraint("DistanceY", -1, 1, 32, 3, Q("474.399924 mm")))
sketch1.addConstraint(Sketcher.Constraint("DistanceX", -1, 1, 33, 3, Q("656.676325 mm")))
sketch1.addConstraint(Sketcher.Constraint("DistanceY", -1, 1, 33, 3, Q("488.487527 mm")))
sketch1.addConstraint(Sketcher.Constraint("DistanceX", -1, 1, 35, 3, Q("625.676325 mm")))
sketch1.addConstraint(Sketcher.Constraint("DistanceY", -1, 1, 35, 3, Q("519.487527 mm")))
sketch1.addConstraint(Sketcher.Constraint("DistanceX", -1, 1, 36, 3, Q("641.176325 mm")))
sketch1.addConstraint(Sketcher.Constraint("DistanceY", -1, 1, 36, 3, Q("503.987527 mm")))
sketch1.addConstraint(Sketcher.Constraint("DistanceX", -1, 1, 37, 3, Q("656.676325 mm")))
sketch1.addConstraint(Sketcher.Constraint("DistanceY", -1, 1, 37, 3, Q("519.487527 mm")))
sketch1.addConstraint(Sketcher.Constraint("DistanceX", -1, 1, 41, 3, Q("625.676325 mm")))
sketch1.addConstraint(Sketcher.Constraint("DistanceY", -1, 1, 41, 3, Q("534.094134 mm")))
sketch1.addConstraint(Sketcher.Constraint("DistanceX", -1, 1, 42, 3, Q("656.676325 mm")))
sketch1.addConstraint(Sketcher.Constraint("DistanceY", -1, 1, 42, 3, Q("534.094134 mm")))
sketch1.addConstraint(Sketcher.Constraint("DistanceX", -1, 1, 44, 3, Q("610.593698 mm")))
sketch1.addConstraint(Sketcher.Constraint("DistanceX", -1, 1, 59, 3, Q("625.676325 mm")))
sketch1.addConstraint(Sketcher.Constraint("DistanceY", -1, 1, 59, 3, Q("565.094134 mm")))
sketch1.addConstraint(Sketcher.Constraint("DistanceX", -1, 1, 60, 3, Q("641.176325 mm")))
sketch1.addConstraint(Sketcher.Constraint("DistanceY", -1, 1, 60, 3, Q("549.594134 mm")))
sketch1.addConstraint(Sketcher.Constraint("DistanceX", -1, 1, 61, 3, Q("656.676325 mm")))
sketch1.addConstraint(Sketcher.Constraint("DistanceY", -1, 1, 61, 3, Q("565.094134 mm")))
sketch1.addConstraint(Sketcher.Constraint("DistanceX", -1, 1, 0, 2, Q("623.903313 mm")))
sketch1.addConstraint(Sketcher.Constraint("DistanceX", -1, 1, 1, 2, Q("628.981435 mm")))
sketch1.addConstraint(Sketcher.Constraint("DistanceY", -1, 1, 5, 2, Q("477.084978 mm")))
sketch1.addConstraint(Sketcher.Constraint("DistanceY", -1, 1, 6, 2, Q("477.084892 mm")))
sketch1.addConstraint(Sketcher.Constraint("DistanceY", -1, 1, 11, 2, Q("560.225374 mm")))
sketch1.addConstraint(Sketcher.Constraint("DistanceX", -1, 1, 14, 2, Q("606.080896 mm")))
sketch1.addConstraint(Sketcher.Constraint("DistanceX", -1, 1, 16, 2, Q("614.005183 mm")))
sketch1.addConstraint(Sketcher.Constraint("DistanceY", -1, 1, 18, 2, Q("486.709143 mm")))
sketch1.addConstraint(Sketcher.Constraint("DistanceX", -1, 1, 25, 2, Q("625.336056 mm")))
sketch1.addConstraint(Sketcher.Constraint("DistanceX", -1, 1, 26, 1, Q("624.652877 mm")))
sketch1.addConstraint(Sketcher.Constraint("DistanceX", -1, 1, 27, 2, Q("624.219924 mm")))
sketch1.addConstraint(Sketcher.Constraint("DistanceX", -1, 1, 44, 2, Q("610.843594 mm")))
sketch1.addConstraint(Sketcher.Constraint("DistanceX", -1, 1, 48, 2, Q("613.960394 mm")))
sketch1.addConstraint(Sketcher.Constraint("DistanceX", -1, 1, 53, 1, Q("613.960394 mm")))
sketch1.addConstraint(Sketcher.Constraint("DistanceX", -1, 1, 56, 2, Q("611.526442 mm")))
sketch1.addConstraint(Sketcher.Constraint("DistanceX", -1, 1, 57, 1, Q("610.843594 mm")))
sketch1.setExpression("Constraints[50]", "Params.sketch1_diameter")
sketch1.setExpression("Constraints[51]", "Params.sketch1_diameter2")
sketch1.setExpression("Constraints[52]", "Params.sketch1_diameter3")
sketch1.setExpression("Constraints[53]", "Params.sketch1_diameter4")
sketch1.setExpression("Constraints[54]", "Params.sketch1_radius")
pad1 = doc.addObject("PartDesign::Pad", "Pad")
body.addObject(pad1)
pad1.Profile = sketch1
pad1.setExpression("Length", "Params.pad1_length")

doc.recompute()
